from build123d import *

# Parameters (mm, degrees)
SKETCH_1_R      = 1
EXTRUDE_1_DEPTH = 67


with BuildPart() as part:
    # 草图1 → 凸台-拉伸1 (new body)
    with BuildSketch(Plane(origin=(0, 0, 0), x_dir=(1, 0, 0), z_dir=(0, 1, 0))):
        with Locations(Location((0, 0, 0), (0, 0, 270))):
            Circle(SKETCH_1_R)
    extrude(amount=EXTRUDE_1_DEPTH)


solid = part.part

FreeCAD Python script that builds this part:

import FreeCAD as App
import Part
import Sketcher
from FreeCAD import Vector

doc = App.newDocument("Part")
body = doc.addObject("PartDesign::Body", "Body")

sketch1 = body.newObject("Sketcher::SketchObject", "Sketch")
sketch1.AttachmentSupport = (doc.getObject("XZ_Plane"), [""])
sketch1.MapMode = "FlatFace"
sketch1.addGeometry(Part.Circle(Vector(0, 0, 0), Vector(0, 0, 1), 1), False)
sketch1.addConstraint([
    Sketcher.Constraint("Coincident", 0, 3, -1, 1),
    Sketcher.Constraint("Diameter", 0, 2.0),
])
pad1 = body.newObject("PartDesign::Pad", "Pad")
pad1.Profile = sketch1
pad1.Length = 67
pad1.Reversed = True

doc.recompute()
